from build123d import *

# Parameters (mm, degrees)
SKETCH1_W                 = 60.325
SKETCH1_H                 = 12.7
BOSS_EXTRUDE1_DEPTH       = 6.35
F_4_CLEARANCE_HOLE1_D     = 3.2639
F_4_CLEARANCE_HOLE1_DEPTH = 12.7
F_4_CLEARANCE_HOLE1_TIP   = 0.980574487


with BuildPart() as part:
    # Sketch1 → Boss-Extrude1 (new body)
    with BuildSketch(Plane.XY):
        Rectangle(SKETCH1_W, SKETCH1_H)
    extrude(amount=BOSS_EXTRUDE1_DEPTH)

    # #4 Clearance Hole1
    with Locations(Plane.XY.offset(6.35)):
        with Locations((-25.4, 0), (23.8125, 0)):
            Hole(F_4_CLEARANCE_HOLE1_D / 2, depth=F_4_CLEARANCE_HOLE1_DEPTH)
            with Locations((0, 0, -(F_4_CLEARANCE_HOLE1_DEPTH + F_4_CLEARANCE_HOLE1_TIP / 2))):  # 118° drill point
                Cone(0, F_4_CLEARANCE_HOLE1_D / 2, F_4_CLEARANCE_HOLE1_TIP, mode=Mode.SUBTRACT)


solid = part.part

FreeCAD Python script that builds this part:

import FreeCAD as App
import Part
import Sketcher

V = App.Vector
Q = App.Units.Quantity

doc = App.newDocument("Part")
body = doc.addObject("PartDesign::Body", "Body")

# Sketch on XY plane
sketch1 = body.newObject("Sketcher::SketchObject", "Sketch")
sketch1.AttachmentSupport = (doc.getObject("XY_Plane"), [""])
sketch1.MapMode = "FlatFace"
sketch1.addGeometry(Part.LineSegment(V(-30, 6, 0), V(-30, -6, 0)), False)
sketch1.addGeometry(Part.LineSegment(V(-30, -6, 0), V(30, -6, 0)), False)
sketch1.addGeometry(Part.LineSegment(V(30, -6, 0), V(30, 6, 0)), False)
sketch1.addGeometry(Part.LineSegment(V(30, 6, 0), V(-30, 6, 0)), False)
sketch1.addConstraint(Sketcher.Constraint("Coincident", 0, 2, 1, 1))
sketch1.addConstraint(Sketcher.Constraint("Coincident", 1, 2, 2, 1))
sketch1.addConstraint(Sketcher.Constraint("Coincident", 2, 2, 3, 1))
sketch1.addConstraint(Sketcher.Constraint("Coincident", 3, 2, 0, 1))
sketch1.addConstraint(Sketcher.Constraint("Vertical", 0))
sketch1.addConstraint(Sketcher.Constraint("Horizontal", 1))
sketch1.addConstraint(Sketcher.Constraint("Vertical", 2))
sketch1.addConstraint(Sketcher.Constraint("Horizontal", 3))
sketch1.addConstraint(Sketcher.Constraint("Symmetric", 0, 2, 2, 2, -1, 1))
sketch1.addConstraint(Sketcher.Constraint("DistanceY", 0, 2, 0, 1, Q("0.5 in")))
sketch1.addConstraint(Sketcher.Constraint("DistanceX", 1, 1, 1, 2, Q("2.375 in")))
pad1 = body.newObject("PartDesign::Pad", "Pad")
pad1.Profile = sketch1
pad1.Length = Q("0.25 in")

# Sketch on XY plane
sketch2 = body.newObject("Sketcher::SketchObject", "Sketch001")
sketch2.AttachmentSupport = (doc.getObject("XY_Plane"), [""])
sketch2.MapMode = "FlatFace"
sketch2.AttachmentOffset = App.Placement(V(0, 0, 0.25 * 25.4), App.Rotation())
sketch2.addGeometry(Part.Circle(V(-25.4, 0, 0), V(0, 0, 1), 1.6), False)
sketch2.addGeometry(Part.Circle(V(23.8, 0, 0), V(0, 0, 1), 1.6), False)
sketch2.addConstraint(Sketcher.Constraint("Equal", 0, 1))
sketch2.addConstraint(Sketcher.Constraint("PointOnObject", 0, 3, -1))
sketch2.addConstraint(Sketcher.Constraint("PointOnObject", 1, 3, -1))
sketch2.addConstraint(Sketcher.Constraint("DistanceX", 0, 3, -1, 1, Q("1 in")))
sketch2.addConstraint(Sketcher.Constraint("Diameter", 0, Q("0.1285 in")))
sketch2.addConstraint(Sketcher.Constraint("DistanceX", -1, 1, 1, 3, Q("0.9375 in")))
doc.recompute()
hole = body.newObject("PartDesign::Hole", "Hole")
hole.Profile = sketch2
hole.ThreadType = "None"
hole.Diameter = Q("0.1285 in")
hole.DepthType = "Dimension"
hole.Depth = Q("0.5 in")
hole.DrillPoint = "Angled"
hole.DrillPointAngle = 118

doc.recompute()
